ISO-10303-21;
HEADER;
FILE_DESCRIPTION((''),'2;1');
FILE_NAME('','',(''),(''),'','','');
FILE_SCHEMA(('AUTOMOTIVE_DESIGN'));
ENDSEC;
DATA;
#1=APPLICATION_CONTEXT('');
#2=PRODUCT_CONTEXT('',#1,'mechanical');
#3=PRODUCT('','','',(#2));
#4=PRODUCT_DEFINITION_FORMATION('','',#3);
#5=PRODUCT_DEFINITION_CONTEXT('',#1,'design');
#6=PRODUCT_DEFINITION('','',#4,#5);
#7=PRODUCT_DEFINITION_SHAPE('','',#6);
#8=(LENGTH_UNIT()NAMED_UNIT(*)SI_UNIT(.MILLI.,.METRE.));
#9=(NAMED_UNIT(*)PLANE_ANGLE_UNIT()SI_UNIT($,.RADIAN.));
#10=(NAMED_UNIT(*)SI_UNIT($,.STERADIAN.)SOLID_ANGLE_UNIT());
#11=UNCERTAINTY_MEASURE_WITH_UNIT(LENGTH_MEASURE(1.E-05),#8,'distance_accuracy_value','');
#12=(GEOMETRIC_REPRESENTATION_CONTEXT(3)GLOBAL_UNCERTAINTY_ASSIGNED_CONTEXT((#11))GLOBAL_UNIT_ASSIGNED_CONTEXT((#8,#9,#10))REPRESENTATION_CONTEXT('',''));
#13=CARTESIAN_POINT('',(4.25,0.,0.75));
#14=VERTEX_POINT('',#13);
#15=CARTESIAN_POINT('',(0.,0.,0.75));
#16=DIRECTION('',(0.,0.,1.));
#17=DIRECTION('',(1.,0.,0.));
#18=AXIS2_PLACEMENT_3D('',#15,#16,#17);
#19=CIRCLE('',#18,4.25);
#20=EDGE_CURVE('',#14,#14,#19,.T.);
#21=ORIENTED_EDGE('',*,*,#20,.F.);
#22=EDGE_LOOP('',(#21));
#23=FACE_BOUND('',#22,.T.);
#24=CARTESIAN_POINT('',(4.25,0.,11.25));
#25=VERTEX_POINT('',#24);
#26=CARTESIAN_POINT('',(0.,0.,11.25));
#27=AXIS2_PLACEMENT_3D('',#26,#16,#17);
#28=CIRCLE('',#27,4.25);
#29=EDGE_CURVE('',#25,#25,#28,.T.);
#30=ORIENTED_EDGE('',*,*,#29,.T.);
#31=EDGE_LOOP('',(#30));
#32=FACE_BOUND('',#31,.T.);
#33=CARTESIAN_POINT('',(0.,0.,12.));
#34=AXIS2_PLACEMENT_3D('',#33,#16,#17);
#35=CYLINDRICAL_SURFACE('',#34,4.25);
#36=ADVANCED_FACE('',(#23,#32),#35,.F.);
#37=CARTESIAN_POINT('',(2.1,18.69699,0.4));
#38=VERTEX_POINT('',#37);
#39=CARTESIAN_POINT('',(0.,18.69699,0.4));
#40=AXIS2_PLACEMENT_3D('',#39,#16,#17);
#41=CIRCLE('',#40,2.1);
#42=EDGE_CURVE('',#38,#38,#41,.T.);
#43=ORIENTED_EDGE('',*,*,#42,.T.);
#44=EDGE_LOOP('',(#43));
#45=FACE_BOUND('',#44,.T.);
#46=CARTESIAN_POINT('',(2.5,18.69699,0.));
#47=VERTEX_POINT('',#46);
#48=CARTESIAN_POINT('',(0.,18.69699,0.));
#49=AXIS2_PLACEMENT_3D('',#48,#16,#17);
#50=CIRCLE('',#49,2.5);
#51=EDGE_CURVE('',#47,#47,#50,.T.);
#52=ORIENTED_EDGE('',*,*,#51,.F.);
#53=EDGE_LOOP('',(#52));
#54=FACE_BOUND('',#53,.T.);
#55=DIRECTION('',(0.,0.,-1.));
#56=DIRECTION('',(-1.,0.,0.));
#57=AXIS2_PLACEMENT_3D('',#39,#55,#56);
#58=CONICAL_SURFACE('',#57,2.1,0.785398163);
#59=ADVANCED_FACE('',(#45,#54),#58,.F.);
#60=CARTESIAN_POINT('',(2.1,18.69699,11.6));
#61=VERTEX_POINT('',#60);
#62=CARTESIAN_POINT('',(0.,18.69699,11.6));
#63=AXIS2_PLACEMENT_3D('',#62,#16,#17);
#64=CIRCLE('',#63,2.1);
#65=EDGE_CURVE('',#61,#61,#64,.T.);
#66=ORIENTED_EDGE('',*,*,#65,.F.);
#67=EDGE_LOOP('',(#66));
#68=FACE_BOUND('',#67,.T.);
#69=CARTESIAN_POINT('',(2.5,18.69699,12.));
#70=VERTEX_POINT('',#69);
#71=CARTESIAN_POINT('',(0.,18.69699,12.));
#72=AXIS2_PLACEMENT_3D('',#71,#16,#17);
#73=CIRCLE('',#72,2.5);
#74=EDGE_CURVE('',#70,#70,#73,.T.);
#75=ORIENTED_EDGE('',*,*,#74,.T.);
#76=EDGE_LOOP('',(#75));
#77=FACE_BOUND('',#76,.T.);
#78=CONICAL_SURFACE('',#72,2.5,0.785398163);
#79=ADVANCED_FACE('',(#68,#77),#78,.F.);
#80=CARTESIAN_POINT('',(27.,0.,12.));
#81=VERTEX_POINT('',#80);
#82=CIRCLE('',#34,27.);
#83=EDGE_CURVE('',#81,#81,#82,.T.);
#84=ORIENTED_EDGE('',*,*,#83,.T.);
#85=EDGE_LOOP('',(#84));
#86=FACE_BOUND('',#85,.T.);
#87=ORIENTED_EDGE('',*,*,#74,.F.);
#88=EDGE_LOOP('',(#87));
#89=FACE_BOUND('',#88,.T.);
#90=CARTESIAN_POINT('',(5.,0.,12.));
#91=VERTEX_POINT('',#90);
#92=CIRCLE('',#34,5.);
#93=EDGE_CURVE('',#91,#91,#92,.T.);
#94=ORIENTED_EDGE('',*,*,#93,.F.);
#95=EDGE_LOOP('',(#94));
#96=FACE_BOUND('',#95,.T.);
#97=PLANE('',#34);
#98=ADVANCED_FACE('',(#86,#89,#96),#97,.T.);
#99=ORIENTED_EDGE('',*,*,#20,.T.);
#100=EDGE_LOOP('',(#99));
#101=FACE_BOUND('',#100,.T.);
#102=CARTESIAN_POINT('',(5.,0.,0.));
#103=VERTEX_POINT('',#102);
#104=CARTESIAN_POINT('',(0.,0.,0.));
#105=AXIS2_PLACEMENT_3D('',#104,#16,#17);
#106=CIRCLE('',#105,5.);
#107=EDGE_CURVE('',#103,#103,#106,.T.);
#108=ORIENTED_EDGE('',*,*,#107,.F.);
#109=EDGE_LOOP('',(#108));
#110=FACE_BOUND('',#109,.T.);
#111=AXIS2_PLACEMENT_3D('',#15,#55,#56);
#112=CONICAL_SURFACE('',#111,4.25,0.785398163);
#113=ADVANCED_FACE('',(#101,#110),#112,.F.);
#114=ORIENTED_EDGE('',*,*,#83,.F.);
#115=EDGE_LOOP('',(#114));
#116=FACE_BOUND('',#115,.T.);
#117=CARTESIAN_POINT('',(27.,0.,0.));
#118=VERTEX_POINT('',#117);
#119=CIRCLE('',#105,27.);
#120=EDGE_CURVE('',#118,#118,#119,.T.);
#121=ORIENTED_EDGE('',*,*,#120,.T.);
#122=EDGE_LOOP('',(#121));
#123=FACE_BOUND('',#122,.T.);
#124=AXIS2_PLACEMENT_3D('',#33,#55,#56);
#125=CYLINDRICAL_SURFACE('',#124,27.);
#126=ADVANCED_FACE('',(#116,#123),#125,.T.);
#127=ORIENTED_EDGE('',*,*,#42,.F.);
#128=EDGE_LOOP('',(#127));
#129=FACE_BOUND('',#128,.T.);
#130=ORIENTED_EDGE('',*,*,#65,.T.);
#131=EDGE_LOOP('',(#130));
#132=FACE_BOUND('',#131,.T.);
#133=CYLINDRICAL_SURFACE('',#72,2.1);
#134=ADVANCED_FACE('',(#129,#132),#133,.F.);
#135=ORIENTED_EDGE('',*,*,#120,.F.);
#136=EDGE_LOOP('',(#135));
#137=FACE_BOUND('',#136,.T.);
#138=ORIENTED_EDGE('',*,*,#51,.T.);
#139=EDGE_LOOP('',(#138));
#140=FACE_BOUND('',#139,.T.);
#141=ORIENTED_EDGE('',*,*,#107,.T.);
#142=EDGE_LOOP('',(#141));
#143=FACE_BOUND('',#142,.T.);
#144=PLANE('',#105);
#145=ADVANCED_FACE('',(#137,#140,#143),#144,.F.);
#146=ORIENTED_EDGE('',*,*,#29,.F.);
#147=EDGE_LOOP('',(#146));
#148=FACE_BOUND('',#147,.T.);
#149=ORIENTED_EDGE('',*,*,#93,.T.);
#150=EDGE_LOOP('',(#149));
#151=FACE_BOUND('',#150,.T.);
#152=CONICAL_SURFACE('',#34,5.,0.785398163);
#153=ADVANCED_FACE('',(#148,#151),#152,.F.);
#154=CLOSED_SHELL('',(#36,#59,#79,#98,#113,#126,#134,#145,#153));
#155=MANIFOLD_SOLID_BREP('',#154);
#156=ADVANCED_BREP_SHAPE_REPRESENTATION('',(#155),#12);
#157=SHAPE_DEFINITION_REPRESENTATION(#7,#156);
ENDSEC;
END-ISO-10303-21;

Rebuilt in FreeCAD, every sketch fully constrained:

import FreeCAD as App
import Part
import Sketcher

V = App.Vector


def add_polygon(sketch, points):
    """Adds a closed chain of lines whose ends are joined by coincident constraints."""
    first, n = sketch.GeometryCount, len(points)
    for a, b in zip(points, points[1:] + points[:1]):
        sketch.addGeometry(Part.LineSegment(App.Vector(*a, 0), App.Vector(*b, 0)), False)
    for i in range(n):
        sketch.addConstraint(Sketcher.Constraint("Coincident", first + i, 2, first + (i + 1) % n, 1))

doc = App.newDocument("Part")
body = doc.addObject("PartDesign::Body", "Body")

# Sketch on XY plane
sketch1 = body.newObject("Sketcher::SketchObject", "Sketch")
sketch1.AttachmentSupport = (doc.getObject("XY_Plane"), [""])
sketch1.MapMode = "FlatFace"
sketch1.addGeometry(Part.Circle(V(0, 0, 0), V(0, 0, 1), 27), False)
sketch1.addConstraint(Sketcher.Constraint("Coincident", 0, 3, -1, 1))
sketch1.addConstraint(Sketcher.Constraint("Diameter", 0, 54.0))
pad1 = body.newObject("PartDesign::Pad", "Pad")
pad1.Profile = sketch1
pad1.Length = 12

# Sketch on YZ plane
sketch2 = body.newObject("Sketcher::SketchObject", "Sketch001")
sketch2.AttachmentSupport = (doc.getObject("YZ_Plane"), [""])
sketch2.MapMode = "FlatFace"
add_polygon(sketch2, [(0, 0), (0, 12), (-5, 12), (-4.2, 11.2), (-4.2, 0.8), (-5, 0)])  # lines 0-5
sketch2.addConstraint(Sketcher.Constraint("Vertical", 0))
sketch2.addConstraint(Sketcher.Constraint("Horizontal", 1))
sketch2.addConstraint(Sketcher.Constraint("Vertical", 3))
sketch2.addConstraint(Sketcher.Constraint("Horizontal", 5))
sketch2.addConstraint(Sketcher.Constraint("Coincident", 5, 2, -1, 1))
sketch2.addConstraint(Sketcher.Constraint("Perpendicular", 2, 4))
sketch2.addConstraint(Sketcher.Constraint("Vertical", 1, 2, 4, 2))
sketch2.addConstraint(Sketcher.Constraint("Equal", 2, 4))
sketch2.addConstraint(Sketcher.Constraint("DistanceX", 1, 2, 1, 1, 5.0))
sketch2.addConstraint(Sketcher.Constraint("DistanceY", 0, 1, 0, 2, 12.0))
sketch2.addConstraint(Sketcher.Constraint("DistanceY", 3, 2, 3, 1, 10.5))
groove = body.newObject("PartDesign::Groove", "Groove")
groove.Profile = sketch2
groove.ReferenceAxis = (sketch2, ["V_Axis"])
groove.Angle = 360

# Sketch on YZ plane
sketch3 = body.newObject("Sketcher::SketchObject", "Sketch002")
sketch3.AttachmentSupport = (doc.getObject("YZ_Plane"), [""])
sketch3.MapMode = "FlatFace"
add_polygon(sketch3, [(18.7, 0), (18.7, 12), (16.2, 12), (16.6, 11.6), (16.6, 0.4), (16.2, 0)])  # lines 0-5
sketch3.addGeometry(Part.LineSegment(V(18.7, 12, 0), V(18.7, 0, 0)), True)  # axis
sketch3.addConstraint(Sketcher.Constraint("Vertical", 0))
sketch3.addConstraint(Sketcher.Constraint("Horizontal", 1))
sketch3.addConstraint(Sketcher.Constraint("Vertical", 3))
sketch3.addConstraint(Sketcher.Constraint("Horizontal", 5))
sketch3.addConstraint(Sketcher.Constraint("Vertical", 6))
sketch3.addConstraint(Sketcher.Constraint("Coincident", 6, 1, 0, 2))
sketch3.addConstraint(Sketcher.Constraint("PointOnObject", 4, 2, -1))
sketch3.addConstraint(Sketcher.Constraint("PointOnObject", 6, 2, -1))
sketch3.addConstraint(Sketcher.Constraint("Perpendicular", 2, 4))
sketch3.addConstraint(Sketcher.Constraint("Vertical", 1, 2, 4, 2))
sketch3.addConstraint(Sketcher.Constraint("Equal", 2, 4))
sketch3.addConstraint(Sketcher.Constraint("DistanceY", 0, 1, 0, 2, 12.0))
sketch3.addConstraint(Sketcher.Constraint("DistanceX", 1, 2, 1, 1, 2.5))
sketch3.addConstraint(Sketcher.Constraint("DistanceY", 3, 2, 3, 1, 11.2))
sketch3.addConstraint(Sketcher.Constraint("DistanceX", -1, 1, 0, 2, 18.69699))
groove2 = body.newObject("PartDesign::Groove", "Groove001")
groove2.Profile = sketch3
groove2.ReferenceAxis = (sketch3, ["Axis0"])
groove2.Angle = 360

doc.recompute()
